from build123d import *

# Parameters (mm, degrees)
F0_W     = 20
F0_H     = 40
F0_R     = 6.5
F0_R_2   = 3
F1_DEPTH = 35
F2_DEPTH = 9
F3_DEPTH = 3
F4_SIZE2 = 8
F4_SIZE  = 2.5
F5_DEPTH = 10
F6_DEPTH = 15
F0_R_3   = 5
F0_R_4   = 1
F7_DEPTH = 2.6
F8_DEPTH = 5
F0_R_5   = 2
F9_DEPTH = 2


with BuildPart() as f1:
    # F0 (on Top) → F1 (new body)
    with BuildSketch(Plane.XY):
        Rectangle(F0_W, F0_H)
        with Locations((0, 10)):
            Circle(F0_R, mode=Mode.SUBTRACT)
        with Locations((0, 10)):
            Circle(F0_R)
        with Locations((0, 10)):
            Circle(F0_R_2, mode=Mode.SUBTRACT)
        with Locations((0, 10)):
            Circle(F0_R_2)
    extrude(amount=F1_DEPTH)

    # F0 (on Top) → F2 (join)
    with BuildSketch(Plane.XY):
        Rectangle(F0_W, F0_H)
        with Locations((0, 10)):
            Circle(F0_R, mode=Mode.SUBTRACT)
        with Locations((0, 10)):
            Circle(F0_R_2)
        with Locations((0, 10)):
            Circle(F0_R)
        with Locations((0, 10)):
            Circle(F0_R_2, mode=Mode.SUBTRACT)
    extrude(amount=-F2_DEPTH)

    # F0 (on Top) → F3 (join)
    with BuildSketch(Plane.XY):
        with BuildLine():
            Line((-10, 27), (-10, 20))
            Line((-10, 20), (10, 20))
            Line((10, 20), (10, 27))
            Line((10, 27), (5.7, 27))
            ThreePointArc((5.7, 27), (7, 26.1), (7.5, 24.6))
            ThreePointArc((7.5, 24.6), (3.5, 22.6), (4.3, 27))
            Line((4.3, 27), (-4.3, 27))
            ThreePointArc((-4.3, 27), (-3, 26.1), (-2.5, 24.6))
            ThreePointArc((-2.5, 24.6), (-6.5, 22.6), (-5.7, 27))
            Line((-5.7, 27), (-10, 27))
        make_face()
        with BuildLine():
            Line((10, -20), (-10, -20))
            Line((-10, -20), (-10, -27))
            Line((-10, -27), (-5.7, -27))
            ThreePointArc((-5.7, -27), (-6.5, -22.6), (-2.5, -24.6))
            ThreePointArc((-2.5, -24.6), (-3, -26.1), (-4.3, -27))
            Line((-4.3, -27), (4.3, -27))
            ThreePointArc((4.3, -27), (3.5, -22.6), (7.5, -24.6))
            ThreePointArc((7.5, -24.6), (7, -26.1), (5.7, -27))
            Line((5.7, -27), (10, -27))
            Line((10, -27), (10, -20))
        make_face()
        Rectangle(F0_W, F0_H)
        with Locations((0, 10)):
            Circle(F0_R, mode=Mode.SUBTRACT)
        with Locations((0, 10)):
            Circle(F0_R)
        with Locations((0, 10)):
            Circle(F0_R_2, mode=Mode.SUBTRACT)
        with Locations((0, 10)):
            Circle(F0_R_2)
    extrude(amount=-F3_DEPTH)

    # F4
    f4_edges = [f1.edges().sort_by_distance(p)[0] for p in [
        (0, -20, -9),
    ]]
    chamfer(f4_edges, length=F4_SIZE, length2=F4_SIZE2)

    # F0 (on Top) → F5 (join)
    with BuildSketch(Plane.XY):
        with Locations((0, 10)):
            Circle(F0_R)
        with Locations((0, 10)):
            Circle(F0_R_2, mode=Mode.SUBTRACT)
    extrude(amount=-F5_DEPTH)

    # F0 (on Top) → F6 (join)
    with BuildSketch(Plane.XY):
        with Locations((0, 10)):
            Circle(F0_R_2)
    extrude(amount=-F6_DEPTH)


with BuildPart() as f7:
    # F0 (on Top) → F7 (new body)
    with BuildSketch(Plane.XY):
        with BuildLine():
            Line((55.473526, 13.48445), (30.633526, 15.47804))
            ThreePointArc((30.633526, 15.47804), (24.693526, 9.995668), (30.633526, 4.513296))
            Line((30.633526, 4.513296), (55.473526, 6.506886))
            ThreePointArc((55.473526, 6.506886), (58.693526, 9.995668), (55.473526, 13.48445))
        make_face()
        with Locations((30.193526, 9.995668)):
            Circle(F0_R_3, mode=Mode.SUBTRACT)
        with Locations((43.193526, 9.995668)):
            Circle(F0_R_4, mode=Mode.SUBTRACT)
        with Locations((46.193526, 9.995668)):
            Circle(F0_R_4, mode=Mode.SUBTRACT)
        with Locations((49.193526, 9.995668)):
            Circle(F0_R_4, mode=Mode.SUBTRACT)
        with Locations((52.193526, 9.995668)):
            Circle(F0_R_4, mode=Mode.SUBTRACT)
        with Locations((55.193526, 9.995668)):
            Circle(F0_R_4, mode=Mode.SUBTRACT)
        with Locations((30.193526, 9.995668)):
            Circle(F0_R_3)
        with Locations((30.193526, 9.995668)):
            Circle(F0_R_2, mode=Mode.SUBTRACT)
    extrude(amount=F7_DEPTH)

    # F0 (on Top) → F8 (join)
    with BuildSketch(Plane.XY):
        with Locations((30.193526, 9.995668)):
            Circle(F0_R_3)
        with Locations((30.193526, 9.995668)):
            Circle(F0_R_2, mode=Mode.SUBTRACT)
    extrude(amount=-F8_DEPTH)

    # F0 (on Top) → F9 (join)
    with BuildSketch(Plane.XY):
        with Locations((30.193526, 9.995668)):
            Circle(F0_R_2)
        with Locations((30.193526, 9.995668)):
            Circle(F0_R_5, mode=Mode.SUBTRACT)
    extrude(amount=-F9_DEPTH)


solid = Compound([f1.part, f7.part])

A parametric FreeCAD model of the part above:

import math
import FreeCAD as App
import Part
import Sketcher
from FreeCAD import Vector


def edges_at(feature, points):
    """Names of the edges that pass closest to the given points."""
    edges = feature.Shape.Edges
    near = lambda p: min(range(len(edges)), key=lambda i: edges[i].distToShape(Part.Vertex(*p))[0])
    return sorted({f"Edge{near(p) + 1}" for p in points})

doc = App.newDocument("Part")
body = doc.addObject("PartDesign::Body", "Body")

# Sketch on XY plane
sketch1 = body.newObject("Sketcher::SketchObject", "Sketch")
sketch1.AttachmentSupport = (doc.getObject("XY_Plane"), [""])
sketch1.MapMode = "FlatFace"
sketch1.addGeometry(Part.LineSegment(Vector(-10, 20, 0), Vector(-10, -20, 0)), False)
sketch1.addGeometry(Part.LineSegment(Vector(-10, -20, 0), Vector(10, -20, 0)), False)
sketch1.addGeometry(Part.LineSegment(Vector(10, -20, 0), Vector(10, 20, 0)), False)
sketch1.addGeometry(Part.LineSegment(Vector(10, 20, 0), Vector(-10, 20, 0)), False)
sketch1.addConstraint(Sketcher.Constraint("Coincident", 0, 2, 1, 1))
sketch1.addConstraint(Sketcher.Constraint("Coincident", 1, 2, 2, 1))
sketch1.addConstraint(Sketcher.Constraint("Coincident", 2, 2, 3, 1))
sketch1.addConstraint(Sketcher.Constraint("Coincident", 3, 2, 0, 1))
sketch1.addConstraint(Sketcher.Constraint("Vertical", 0))
sketch1.addConstraint(Sketcher.Constraint("Horizontal", 1))
sketch1.addConstraint(Sketcher.Constraint("Vertical", 2))
sketch1.addConstraint(Sketcher.Constraint("Horizontal", 3))
sketch1.addConstraint(Sketcher.Constraint("Symmetric", 0, 2, 2, 2, -1, 1))
sketch1.addConstraint(Sketcher.Constraint("DistanceX", 1, 1, 1, 2, 20.0))
sketch1.addConstraint(Sketcher.Constraint("DistanceY", 0, 2, 0, 1, 40.0))
pad1 = body.newObject("PartDesign::Pad", "Pad")
pad1.Profile = sketch1
pad1.Length = 35

# Sketch on XY plane
sketch2 = body.newObject("Sketcher::SketchObject", "Sketch001")
sketch2.AttachmentSupport = (doc.getObject("XY_Plane"), [""])
sketch2.MapMode = "FlatFace"
sketch2.addGeometry(Part.LineSegment(Vector(-10, 20, 0), Vector(-10, -20, 0)), False)
sketch2.addGeometry(Part.LineSegment(Vector(-10, -20, 0), Vector(10, -20, 0)), False)
sketch2.addGeometry(Part.LineSegment(Vector(10, -20, 0), Vector(10, 20, 0)), False)
sketch2.addGeometry(Part.LineSegment(Vector(10, 20, 0), Vector(-10, 20, 0)), False)
sketch2.addGeometry(Part.Circle(Vector(0, 10, 0), Vector(0, 0, 1), 3), False)
sketch2.addConstraint(Sketcher.Constraint("Coincident", 0, 2, 1, 1))
sketch2.addConstraint(Sketcher.Constraint("Coincident", 1, 2, 2, 1))
sketch2.addConstraint(Sketcher.Constraint("Coincident", 2, 2, 3, 1))
sketch2.addConstraint(Sketcher.Constraint("Coincident", 3, 2, 0, 1))
sketch2.addConstraint(Sketcher.Constraint("Vertical", 0))
sketch2.addConstraint(Sketcher.Constraint("Horizontal", 1))
sketch2.addConstraint(Sketcher.Constraint("Vertical", 2))
sketch2.addConstraint(Sketcher.Constraint("Horizontal", 3))
sketch2.addConstraint(Sketcher.Constraint("Symmetric", 0, 2, 2, 2, -1, 1))
sketch2.addConstraint(Sketcher.Constraint("PointOnObject", 4, 3, -2))
sketch2.addConstraint(Sketcher.Constraint("Diameter", 4, 6.0))
sketch2.addConstraint(Sketcher.Constraint("DistanceX", 1, 1, 1, 2, 20.0))
sketch2.addConstraint(Sketcher.Constraint("DistanceY", 0, 2, 0, 1, 40.0))
sketch2.addConstraint(Sketcher.Constraint("DistanceY", -1, 1, 4, 3, 10.0))
pad2 = body.newObject("PartDesign::Pad", "Pad001")
pad2.Profile = sketch2
pad2.Length = 9
pad2.Reversed = True

# Sketch on XY plane
sketch3 = body.newObject("Sketcher::SketchObject", "Sketch002")
sketch3.AttachmentSupport = (doc.getObject("XY_Plane"), [""])
sketch3.MapMode = "FlatFace"
sketch3.addGeometry(Part.LineSegment(Vector(-10, 27, 0), Vector(-10, -27, 0)), False)
sketch3.addGeometry(Part.LineSegment(Vector(-10, -27, 0), Vector(-5.7, -27, 0)), False)
sketch3.addGeometry(Part.ArcOfCircle(Part.Circle(Vector(-5, -24.6, 0), Vector(0, 0, 1), 2.5), math.radians(-74), math.radians(254)), False)
sketch3.addGeometry(Part.LineSegment(Vector(-4.3, -27, 0), Vector(4.3, -27, 0)), False)
sketch3.addGeometry(Part.ArcOfCircle(Part.Circle(Vector(5, -24.6, 0), Vector(0, 0, 1), 2.5), math.radians(-74), math.radians(254)), False)
sketch3.addGeometry(Part.LineSegment(Vector(5.7, -27, 0), Vector(10, -27, 0)), False)
sketch3.addGeometry(Part.LineSegment(Vector(10, -27, 0), Vector(10, 27, 0)), False)
sketch3.addGeometry(Part.LineSegment(Vector(10, 27, 0), Vector(5.7, 27, 0)), False)
sketch3.addGeometry(Part.ArcOfCircle(Part.Circle(Vector(5, 24.6, 0), Vector(0, 0, 1), 2.5), math.radians(106), math.radians(434)), False)
sketch3.addGeometry(Part.LineSegment(Vector(4.3, 27, 0), Vector(-4.3, 27, 0)), False)
sketch3.addGeometry(Part.ArcOfCircle(Part.Circle(Vector(-5, 24.6, 0), Vector(0, 0, 1), 2.5), math.radians(106), math.radians(434)), False)
sketch3.addGeometry(Part.LineSegment(Vector(-5.7, 27, 0), Vector(-10, 27, 0)), False)
sketch3.addConstraint(Sketcher.Constraint("Coincident", 0, 2, 1, 1))
sketch3.addConstraint(Sketcher.Constraint("Coincident", 1, 2, 2, 2))
sketch3.addConstraint(Sketcher.Constraint("Coincident", 2, 1, 3, 1))
sketch3.addConstraint(Sketcher.Constraint("Coincident", 3, 2, 4, 2))
sketch3.addConstraint(Sketcher.Constraint("Coincident", 4, 1, 5, 1))
sketch3.addConstraint(Sketcher.Constraint("Coincident", 5, 2, 6, 1))
sketch3.addConstraint(Sketcher.Constraint("Coincident", 6, 2, 7, 1))
sketch3.addConstraint(Sketcher.Constraint("Coincident", 7, 2, 8, 2))
sketch3.addConstraint(Sketcher.Constraint("Coincident", 8, 1, 9, 1))
sketch3.addConstraint(Sketcher.Constraint("Coincident", 9, 2, 10, 2))
sketch3.addConstraint(Sketcher.Constraint("Coincident", 10, 1, 11, 1))
sketch3.addConstraint(Sketcher.Constraint("Coincident", 11, 2, 0, 1))
sketch3.addConstraint(Sketcher.Constraint("Vertical", 0))
sketch3.addConstraint(Sketcher.Constraint("Horizontal", 1))
sketch3.addConstraint(Sketcher.Constraint("Horizontal", 3))
sketch3.addConstraint(Sketcher.Constraint("Horizontal", 5))
sketch3.addConstraint(Sketcher.Constraint("Vertical", 6))
sketch3.addConstraint(Sketcher.Constraint("Horizontal", 7))
sketch3.addConstraint(Sketcher.Constraint("Horizontal", 9))
sketch3.addConstraint(Sketcher.Constraint("Horizontal", 11))
sketch3.addConstraint(Sketcher.Constraint("Equal", 2, 4))
sketch3.addConstraint(Sketcher.Constraint("Equal", 4, 8))
sketch3.addConstraint(Sketcher.Constraint("Equal", 8, 10))
sketch3.addConstraint(Sketcher.Constraint("Symmetric", 2, 3, 8, 3, -1, 1))
sketch3.addConstraint(Sketcher.Constraint("Symmetric", 4, 3, 10, 3, -1, 1))
sketch3.addConstraint(Sketcher.Constraint("Symmetric", 0, 2, 6, 2, -1, 1))
sketch3.addConstraint(Sketcher.Constraint("Symmetric", 2, 3, 4, 3, -2))
sketch3.addConstraint(Sketcher.Constraint("Horizontal", 1, 2, 2, 1))
sketch3.addConstraint(Sketcher.Constraint("Horizontal", 3, 2, 4, 1))
sketch3.addConstraint(Sketcher.Constraint("Horizontal", 7, 2, 8, 1))
sketch3.addConstraint(Sketcher.Constraint("Horizontal", 9, 2, 10, 1))
sketch3.addConstraint(Sketcher.Constraint("Radius", 2, 2.5))
sketch3.addConstraint(Sketcher.Constraint("DistanceY", 0, 2, 0, 1, 54.0))
sketch3.addConstraint(Sketcher.Constraint("DistanceX", 1, 1, 1, 2, 4.3))
sketch3.addConstraint(Sketcher.Constraint("DistanceX", 3, 1, 3, 2, 8.6))
sketch3.addConstraint(Sketcher.Constraint("DistanceX", 2, 3, -1, 1, 5.0))
pad3 = body.newObject("PartDesign::Pad", "Pad002")
pad3.Profile = sketch3
pad3.Length = 3
pad3.Reversed = True
doc.recompute()

chamfer = body.newObject("PartDesign::Chamfer", "Chamfer")
chamfer.Base = (pad3, edges_at(pad3, [(0, -20, -9)]))
chamfer.ChamferType = "Two distances"
chamfer.Size = 2.5
chamfer.Size2 = 8
chamfer.FlipDirection = True

# Sketch on XY plane
sketch4 = body.newObject("Sketcher::SketchObject", "Sketch003")
sketch4.AttachmentSupport = (doc.getObject("XY_Plane"), [""])
sketch4.MapMode = "FlatFace"
sketch4.addGeometry(Part.Circle(Vector(0, 10, 0), Vector(0, 0, 1), 6.5), False)
sketch4.addGeometry(Part.Circle(Vector(0, 10, 0), Vector(0, 0, 1), 3), False)
sketch4.addConstraint(Sketcher.Constraint("Coincident", 1, 3, 0, 3))
sketch4.addConstraint(Sketcher.Constraint("PointOnObject", 0, 3, -2))
sketch4.addConstraint(Sketcher.Constraint("Diameter", 0, 13.0))
sketch4.addConstraint(Sketcher.Constraint("Diameter", 1, 6.0))
sketch4.addConstraint(Sketcher.Constraint("DistanceY", -1, 1, 0, 3, 10.0))
pad4 = body.newObject("PartDesign::Pad", "Pad003")
pad4.Profile = sketch4
pad4.Length = 10
pad4.Reversed = True

# Sketch on XY plane
sketch5 = body.newObject("Sketcher::SketchObject", "Sketch004")
sketch5.AttachmentSupport = (doc.getObject("XY_Plane"), [""])
sketch5.MapMode = "FlatFace"
sketch5.addGeometry(Part.Circle(Vector(0, 10, 0), Vector(0, 0, 1), 3), False)
sketch5.addConstraint(Sketcher.Constraint("PointOnObject", 0, 3, -2))
sketch5.addConstraint(Sketcher.Constraint("Diameter", 0, 6.0))
sketch5.addConstraint(Sketcher.Constraint("DistanceY", -1, 1, 0, 3, 10.0))
pad5 = body.newObject("PartDesign::Pad", "Pad004")
pad5.Profile = sketch5
pad5.Length = 15
pad5.Reversed = True
body2 = doc.addObject("PartDesign::Body", "Body001")

# Sketch on XY plane
sketch6 = body2.newObject("Sketcher::SketchObject", "Sketch005")
sketch6.AttachmentSupport = (doc.getObject("XY_Plane001"), [""])
sketch6.MapMode = "FlatFace"
sketch6.addGeometry(Part.LineSegment(Vector(55.5, 13.5, 0), Vector(30.6, 15.5, 0)), False)
sketch6.addGeometry(Part.ArcOfCircle(Part.Circle(Vector(30.2, 10, 0), Vector(0, 0, 1), 5.5), math.radians(85), math.radians(275)), False)
sketch6.addGeometry(Part.LineSegment(Vector(30.6, 4.5, 0), Vector(55.5, 6.5, 0)), False)
sketch6.addGeometry(Part.ArcOfCircle(Part.Circle(Vector(55.2, 10, 0), Vector(0, 0, 1), 3.5), math.radians(-85), math.radians(85)), False)
sketch6.addGeometry(Part.Circle(Vector(30.2, 10, 0), Vector(0, 0, 1), 3), False)
sketch6.addGeometry(Part.Circle(Vector(43.2, 10, 0), Vector(0, 0, 1), 1), False)
sketch6.addGeometry(Part.Circle(Vector(46.2, 10, 0), Vector(0, 0, 1), 1), False)
sketch6.addGeometry(Part.Circle(Vector(49.2, 10, 0), Vector(0, 0, 1), 1), False)
sketch6.addGeometry(Part.Circle(Vector(52.2, 10, 0), Vector(0, 0, 1), 1), False)
sketch6.addGeometry(Part.Circle(Vector(55.2, 10, 0), Vector(0, 0, 1), 1), False)
sketch6.addConstraint(Sketcher.Constraint("Tangent", 0, 2, 1, 1))
sketch6.addConstraint(Sketcher.Constraint("Tangent", 1, 2, 2, 1))
sketch6.addConstraint(Sketcher.Constraint("Tangent", 2, 2, 3, 1))
sketch6.addConstraint(Sketcher.Constraint("Tangent", 3, 2, 0, 1))
sketch6.addConstraint(Sketcher.Constraint("Coincident", 4, 3, 1, 3))
sketch6.addConstraint(Sketcher.Constraint("Coincident", 9, 3, 3, 3))
sketch6.addConstraint(Sketcher.Constraint("Equal", 5, 6))
sketch6.addConstraint(Sketcher.Constraint("Equal", 6, 7))
sketch6.addConstraint(Sketcher.Constraint("Equal", 7, 8))
sketch6.addConstraint(Sketcher.Constraint("Equal", 8, 9))
sketch6.addConstraint(Sketcher.Constraint("Horizontal", 1, 3, 3, 3))
sketch6.addConstraint(Sketcher.Constraint("Horizontal", 4, 3, 5, 3))
sketch6.addConstraint(Sketcher.Constraint("Horizontal", 5, 3, 6, 3))
sketch6.addConstraint(Sketcher.Constraint("Horizontal", 6, 3, 7, 3))
sketch6.addConstraint(Sketcher.Constraint("Horizontal", 7, 3, 8, 3))
sketch6.addConstraint(Sketcher.Constraint("Diameter", 4, 6.0))
sketch6.addConstraint(Sketcher.Constraint("Diameter", 5, 2.0))
sketch6.addConstraint(Sketcher.Constraint("Radius", 1, 5.5))
sketch6.addConstraint(Sketcher.Constraint("Radius", 3, 3.5))
sketch6.addConstraint(Sketcher.Constraint("DistanceX", 1, 3, 3, 3, 25.0))
sketch6.addConstraint(Sketcher.Constraint("DistanceX", 5, 3, 3, 3, 12.0))
sketch6.addConstraint(Sketcher.Constraint("DistanceX", 5, 3, 6, 3, 3.0))
sketch6.addConstraint(Sketcher.Constraint("DistanceX", 6, 3, 7, 3, 3.0))
sketch6.addConstraint(Sketcher.Constraint("DistanceX", 7, 3, 8, 3, 3.0))
sketch6.addConstraint(Sketcher.Constraint("DistanceY", -1, 1, 0, 2, 15.47804))
sketch6.addConstraint(Sketcher.Constraint("DistanceX", -1, 1, 1, 3, 30.193526))
pad6 = body2.newObject("PartDesign::Pad", "Pad005")
pad6.Profile = sketch6
pad6.Length = 2.6

# Sketch on XY plane
sketch7 = body2.newObject("Sketcher::SketchObject", "Sketch006")
sketch7.AttachmentSupport = (doc.getObject("XY_Plane001"), [""])
sketch7.MapMode = "FlatFace"
sketch7.addGeometry(Part.Circle(Vector(30.2, 10, 0), Vector(0, 0, 1), 5), False)
sketch7.addGeometry(Part.Circle(Vector(30.2, 10, 0), Vector(0, 0, 1), 3), False)
sketch7.addConstraint(Sketcher.Constraint("Coincident", 1, 3, 0, 3))
sketch7.addConstraint(Sketcher.Constraint("Diameter", 0, 10.0))
sketch7.addConstraint(Sketcher.Constraint("Diameter", 1, 6.0))
sketch7.addConstraint(Sketcher.Constraint("DistanceX", -1, 1, 0, 3, 30.193526))
sketch7.addConstraint(Sketcher.Constraint("DistanceY", -1, 1, 0, 3, 9.995668))
pad7 = body2.newObject("PartDesign::Pad", "Pad006")
pad7.Profile = sketch7
pad7.Length = 5
pad7.Reversed = True

# Sketch on XY plane
sketch8 = body2.newObject("Sketcher::SketchObject", "Sketch007")
sketch8.AttachmentSupport = (doc.getObject("XY_Plane001"), [""])
sketch8.MapMode = "FlatFace"
sketch8.addGeometry(Part.Circle(Vector(30.2, 10, 0), Vector(0, 0, 1), 3), False)
sketch8.addGeometry(Part.Circle(Vector(30.2, 10, 0), Vector(0, 0, 1), 2), False)
sketch8.addConstraint(Sketcher.Constraint("Coincident", 1, 3, 0, 3))
sketch8.addConstraint(Sketcher.Constraint("Diameter", 0, 6.0))
sketch8.addConstraint(Sketcher.Constraint("Diameter", 1, 4.0))
sketch8.addConstraint(Sketcher.Constraint("DistanceX", -1, 1, 0, 3, 30.193526))
sketch8.addConstraint(Sketcher.Constraint("DistanceY", -1, 1, 0, 3, 9.995668))
pad8 = body2.newObject("PartDesign::Pad", "Pad007")
pad8.Profile = sketch8
pad8.Length = 2
pad8.Reversed = True

doc.recompute()
